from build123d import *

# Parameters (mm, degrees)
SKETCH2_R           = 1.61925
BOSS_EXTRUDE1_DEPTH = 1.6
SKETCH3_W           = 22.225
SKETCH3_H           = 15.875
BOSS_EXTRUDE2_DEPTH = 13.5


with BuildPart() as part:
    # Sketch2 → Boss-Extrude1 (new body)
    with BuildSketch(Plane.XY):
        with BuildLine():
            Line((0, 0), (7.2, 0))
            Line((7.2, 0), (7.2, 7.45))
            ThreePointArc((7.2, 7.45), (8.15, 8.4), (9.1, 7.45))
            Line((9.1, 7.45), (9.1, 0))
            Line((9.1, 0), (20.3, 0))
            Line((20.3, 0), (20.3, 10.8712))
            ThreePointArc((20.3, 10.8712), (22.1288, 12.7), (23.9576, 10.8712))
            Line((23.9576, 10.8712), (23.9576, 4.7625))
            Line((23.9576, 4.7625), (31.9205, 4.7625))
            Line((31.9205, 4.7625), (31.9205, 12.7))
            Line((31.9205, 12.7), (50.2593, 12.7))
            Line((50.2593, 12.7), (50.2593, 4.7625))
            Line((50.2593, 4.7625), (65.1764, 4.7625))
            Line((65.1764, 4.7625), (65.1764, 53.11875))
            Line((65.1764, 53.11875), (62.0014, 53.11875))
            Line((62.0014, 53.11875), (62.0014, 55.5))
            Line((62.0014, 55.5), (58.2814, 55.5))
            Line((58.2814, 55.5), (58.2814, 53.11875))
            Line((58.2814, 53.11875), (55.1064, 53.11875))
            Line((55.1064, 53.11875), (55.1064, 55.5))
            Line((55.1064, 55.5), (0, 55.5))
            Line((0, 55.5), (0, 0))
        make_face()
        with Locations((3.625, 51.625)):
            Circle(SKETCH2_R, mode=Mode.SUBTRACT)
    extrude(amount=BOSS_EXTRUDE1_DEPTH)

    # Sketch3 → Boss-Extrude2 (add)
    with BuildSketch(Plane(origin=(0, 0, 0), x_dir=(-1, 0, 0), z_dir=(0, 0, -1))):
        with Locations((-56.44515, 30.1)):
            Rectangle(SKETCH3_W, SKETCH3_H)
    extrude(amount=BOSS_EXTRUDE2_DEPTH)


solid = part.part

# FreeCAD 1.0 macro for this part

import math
import FreeCAD as App
import Part
import Sketcher
Q = App.Units.Quantity

doc = App.newDocument("Part")
body = doc.addObject("PartDesign::Body", "Body")

# Sketch on XY plane
sketch1 = body.newObject("Sketcher::SketchObject", "Sketch")
sketch1.AttachmentSupport = (doc.getObject("XY_Plane"), [""])
sketch1.MapMode = "FlatFace"
sketch1.addGeometry(Part.LineSegment(App.Vector(0, 0, 0), App.Vector(7.2, 0, 0)), False)
sketch1.addGeometry(Part.LineSegment(App.Vector(7.2, 0, 0), App.Vector(7.2, 7.5, 0)), False)
sketch1.addGeometry(Part.ArcOfCircle(Part.Circle(App.Vector(8.2, 7.5, 0), App.Vector(0, 0, 1), 0.9), math.radians(0), math.radians(180)), False)
sketch1.addGeometry(Part.LineSegment(App.Vector(9.1, 7.5, 0), App.Vector(9.1, 0, 0)), False)
sketch1.addGeometry(Part.LineSegment(App.Vector(9.1, 0, 0), App.Vector(20.3, 0, 0)), False)
sketch1.addGeometry(Part.LineSegment(App.Vector(20.3, 0, 0), App.Vector(20.3, 10.9, 0)), False)
sketch1.addGeometry(Part.ArcOfCircle(Part.Circle(App.Vector(22.1, 10.9, 0), App.Vector(0, 0, 1), 1.8), math.radians(0), math.radians(180)), False)
sketch1.addGeometry(Part.LineSegment(App.Vector(24, 10.9, 0), App.Vector(24, 4.8, 0)), False)
sketch1.addGeometry(Part.LineSegment(App.Vector(24, 4.8, 0), App.Vector(31.9, 4.8, 0)), False)
sketch1.addGeometry(Part.LineSegment(App.Vector(31.9, 4.8, 0), App.Vector(31.9, 12.7, 0)), False)
sketch1.addGeometry(Part.LineSegment(App.Vector(31.9, 12.7, 0), App.Vector(50.3, 12.7, 0)), False)
sketch1.addGeometry(Part.LineSegment(App.Vector(50.3, 12.7, 0), App.Vector(50.3, 4.8, 0)), False)
sketch1.addGeometry(Part.LineSegment(App.Vector(50.3, 4.8, 0), App.Vector(65.2, 4.8, 0)), False)
sketch1.addGeometry(Part.LineSegment(App.Vector(65.2, 4.8, 0), App.Vector(65.2, 53.1, 0)), False)
sketch1.addGeometry(Part.LineSegment(App.Vector(65.2, 53.1, 0), App.Vector(62, 53.1, 0)), False)
sketch1.addGeometry(Part.LineSegment(App.Vector(62, 53.1, 0), App.Vector(62, 55.5, 0)), False)
sketch1.addGeometry(Part.LineSegment(App.Vector(62, 55.5, 0), App.Vector(58.3, 55.5, 0)), False)
sketch1.addGeometry(Part.LineSegment(App.Vector(58.3, 55.5, 0), App.Vector(58.3, 53.1, 0)), False)
sketch1.addGeometry(Part.LineSegment(App.Vector(58.3, 53.1, 0), App.Vector(55.1, 53.1, 0)), False)
sketch1.addGeometry(Part.LineSegment(App.Vector(55.1, 53.1, 0), App.Vector(55.1, 55.5, 0)), False)
sketch1.addGeometry(Part.LineSegment(App.Vector(55.1, 55.5, 0), App.Vector(0, 55.5, 0)), False)
sketch1.addGeometry(Part.LineSegment(App.Vector(0, 55.5, 0), App.Vector(0, 0, 0)), False)
sketch1.addGeometry(Part.Circle(App.Vector(3.6, 51.6, 0), App.Vector(0, 0, 1), 1.6), False)
sketch1.addConstraint(Sketcher.Constraint("Coincident", 0, 2, 1, 1))
sketch1.addConstraint(Sketcher.Constraint("Tangent", 1, 2, 2, 2))
sketch1.addConstraint(Sketcher.Constraint("Tangent", 2, 1, 3, 1))
sketch1.addConstraint(Sketcher.Constraint("Coincident", 3, 2, 4, 1))
sketch1.addConstraint(Sketcher.Constraint("Coincident", 4, 2, 5, 1))
sketch1.addConstraint(Sketcher.Constraint("Tangent", 5, 2, 6, 2))
sketch1.addConstraint(Sketcher.Constraint("Tangent", 6, 1, 7, 1))
sketch1.addConstraint(Sketcher.Constraint("Coincident", 7, 2, 8, 1))
sketch1.addConstraint(Sketcher.Constraint("Coincident", 8, 2, 9, 1))
sketch1.addConstraint(Sketcher.Constraint("Coincident", 9, 2, 10, 1))
sketch1.addConstraint(Sketcher.Constraint("Coincident", 10, 2, 11, 1))
sketch1.addConstraint(Sketcher.Constraint("Coincident", 11, 2, 12, 1))
sketch1.addConstraint(Sketcher.Constraint("Coincident", 12, 2, 13, 1))
sketch1.addConstraint(Sketcher.Constraint("Coincident", 13, 2, 14, 1))
sketch1.addConstraint(Sketcher.Constraint("Coincident", 14, 2, 15, 1))
sketch1.addConstraint(Sketcher.Constraint("Coincident", 15, 2, 16, 1))
sketch1.addConstraint(Sketcher.Constraint("Coincident", 16, 2, 17, 1))
sketch1.addConstraint(Sketcher.Constraint("Coincident", 17, 2, 18, 1))
sketch1.addConstraint(Sketcher.Constraint("Coincident", 18, 2, 19, 1))
sketch1.addConstraint(Sketcher.Constraint("Coincident", 19, 2, 20, 1))
sketch1.addConstraint(Sketcher.Constraint("Coincident", 20, 2, 21, 1))
sketch1.addConstraint(Sketcher.Constraint("Coincident", 21, 2, 0, 1))
sketch1.addConstraint(Sketcher.Constraint("Horizontal", 0))
sketch1.addConstraint(Sketcher.Constraint("Vertical", 1))
sketch1.addConstraint(Sketcher.Constraint("Vertical", 3))
sketch1.addConstraint(Sketcher.Constraint("Horizontal", 4))
sketch1.addConstraint(Sketcher.Constraint("Vertical", 5))
sketch1.addConstraint(Sketcher.Constraint("Vertical", 7))
sketch1.addConstraint(Sketcher.Constraint("Horizontal", 8))
sketch1.addConstraint(Sketcher.Constraint("Vertical", 9))
sketch1.addConstraint(Sketcher.Constraint("Horizontal", 10))
sketch1.addConstraint(Sketcher.Constraint("Vertical", 11))
sketch1.addConstraint(Sketcher.Constraint("Horizontal", 12))
sketch1.addConstraint(Sketcher.Constraint("Vertical", 13))
sketch1.addConstraint(Sketcher.Constraint("Horizontal", 14))
sketch1.addConstraint(Sketcher.Constraint("Vertical", 15))
sketch1.addConstraint(Sketcher.Constraint("Horizontal", 16))
sketch1.addConstraint(Sketcher.Constraint("Vertical", 17))
sketch1.addConstraint(Sketcher.Constraint("Horizontal", 18))
sketch1.addConstraint(Sketcher.Constraint("Vertical", 19))
sketch1.addConstraint(Sketcher.Constraint("Horizontal", 20))
sketch1.addConstraint(Sketcher.Constraint("Vertical", 21))
sketch1.addConstraint(Sketcher.Constraint("Coincident", 21, 2, -1, 1))
sketch1.addConstraint(Sketcher.Constraint("PointOnObject", 3, 2, -1))
sketch1.addConstraint(Sketcher.Constraint("Horizontal", 8, 2, 11, 2))
sketch1.addConstraint(Sketcher.Constraint("Horizontal", 14, 2, 17, 2))
sketch1.addConstraint(Sketcher.Constraint("Horizontal", 16, 2, 19, 2))
sketch1.addConstraint(Sketcher.Constraint("Equal", 14, 18))
sketch1.addConstraint(Sketcher.Constraint("Radius", 6, Q("0.072 in")))
sketch1.addConstraint(Sketcher.Constraint("Diameter", 22, Q("0.1275 in")))
sketch1.addConstraint(Sketcher.Constraint("DistanceY", -1, 1, 9, 2, Q("0.5 in")))
sketch1.addConstraint(Sketcher.Constraint("DistanceX", 10, 1, 10, 2, Q("0.722 in")))
sketch1.addConstraint(Sketcher.Constraint("DistanceX", 14, 2, 14, 1, Q("0.125 in")))
sketch1.addConstraint(Sketcher.Constraint("DistanceY", 5, 1, 5, 2, Q("0.428 in")))
sketch1.addConstraint(Sketcher.Constraint("DistanceY", 9, 1, 9, 2, Q("0.3125 in")))
sketch1.addConstraint(Sketcher.Constraint("DistanceY", 15, 1, 15, 2, Q("0.09375 in")))
sketch1.addConstraint(Sketcher.Constraint("Radius", 2, 0.95))
sketch1.addConstraint(Sketcher.Constraint("DistanceX", 8, 1, 8, 2, Q("0.3135 in")))
sketch1.addConstraint(Sketcher.Constraint("DistanceX", -1, 1, 12, 2, Q("2.566 in")))
sketch1.addConstraint(Sketcher.Constraint("DistanceX", 0, 1, 0, 2, 7.2))
sketch1.addConstraint(Sketcher.Constraint("DistanceX", 4, 1, 4, 2, 11.2))
sketch1.addConstraint(Sketcher.Constraint("DistanceX", 16, 2, 16, 1, 3.72))
sketch1.addConstraint(Sketcher.Constraint("DistanceY", 1, 1, 1, 2, 7.45))
sketch1.addConstraint(Sketcher.Constraint("DistanceY", 21, 2, 21, 1, 55.5))
sketch1.addConstraint(Sketcher.Constraint("DistanceX", -1, 1, 22, 3, 3.625))
sketch1.addConstraint(Sketcher.Constraint("DistanceY", -1, 1, 22, 3, 51.625))
pad1 = body.newObject("PartDesign::Pad", "Pad")
pad1.Profile = sketch1
pad1.Length = 1.6

# Sketch on XY plane
sketch2 = body.newObject("Sketcher::SketchObject", "Sketch001")
sketch2.AttachmentSupport = (doc.getObject("XY_Plane"), [""])
sketch2.MapMode = "FlatFace"
sketch2.addGeometry(Part.LineSegment(App.Vector(68, 38, 0), App.Vector(68, 22, 0)), False)
sketch2.addGeometry(Part.LineSegment(App.Vector(68, 22, 0), App.Vector(45, 22, 0)), False)
sketch2.addGeometry(Part.LineSegment(App.Vector(45, 22, 0), App.Vector(45, 38, 0)), False)
sketch2.addGeometry(Part.LineSegment(App.Vector(45, 38, 0), App.Vector(68, 38, 0)), False)
sketch2.addConstraint(Sketcher.Constraint("Coincident", 0, 2, 1, 1))
sketch2.addConstraint(Sketcher.Constraint("Coincident", 1, 2, 2, 1))
sketch2.addConstraint(Sketcher.Constraint("Coincident", 2, 2, 3, 1))
sketch2.addConstraint(Sketcher.Constraint("Coincident", 3, 2, 0, 1))
sketch2.addConstraint(Sketcher.Constraint("Vertical", 0))
sketch2.addConstraint(Sketcher.Constraint("Horizontal", 1))
sketch2.addConstraint(Sketcher.Constraint("Vertical", 2))
sketch2.addConstraint(Sketcher.Constraint("Horizontal", 3))
sketch2.addConstraint(Sketcher.Constraint("DistanceX", 1, 2, 1, 1, Q("0.875 in")))
sketch2.addConstraint(Sketcher.Constraint("DistanceY", 0, 2, 0, 1, Q("0.625 in")))
sketch2.addConstraint(Sketcher.Constraint("DistanceY", -1, 1, 0, 2, 22.1625))
sketch2.addConstraint(Sketcher.Constraint("DistanceX", -1, 1, 0, 2, 67.55765))
pad2 = body.newObject("PartDesign::Pad", "Pad001")
pad2.Profile = sketch2
pad2.Length = 13.5
pad2.Reversed = True

doc.recompute()
